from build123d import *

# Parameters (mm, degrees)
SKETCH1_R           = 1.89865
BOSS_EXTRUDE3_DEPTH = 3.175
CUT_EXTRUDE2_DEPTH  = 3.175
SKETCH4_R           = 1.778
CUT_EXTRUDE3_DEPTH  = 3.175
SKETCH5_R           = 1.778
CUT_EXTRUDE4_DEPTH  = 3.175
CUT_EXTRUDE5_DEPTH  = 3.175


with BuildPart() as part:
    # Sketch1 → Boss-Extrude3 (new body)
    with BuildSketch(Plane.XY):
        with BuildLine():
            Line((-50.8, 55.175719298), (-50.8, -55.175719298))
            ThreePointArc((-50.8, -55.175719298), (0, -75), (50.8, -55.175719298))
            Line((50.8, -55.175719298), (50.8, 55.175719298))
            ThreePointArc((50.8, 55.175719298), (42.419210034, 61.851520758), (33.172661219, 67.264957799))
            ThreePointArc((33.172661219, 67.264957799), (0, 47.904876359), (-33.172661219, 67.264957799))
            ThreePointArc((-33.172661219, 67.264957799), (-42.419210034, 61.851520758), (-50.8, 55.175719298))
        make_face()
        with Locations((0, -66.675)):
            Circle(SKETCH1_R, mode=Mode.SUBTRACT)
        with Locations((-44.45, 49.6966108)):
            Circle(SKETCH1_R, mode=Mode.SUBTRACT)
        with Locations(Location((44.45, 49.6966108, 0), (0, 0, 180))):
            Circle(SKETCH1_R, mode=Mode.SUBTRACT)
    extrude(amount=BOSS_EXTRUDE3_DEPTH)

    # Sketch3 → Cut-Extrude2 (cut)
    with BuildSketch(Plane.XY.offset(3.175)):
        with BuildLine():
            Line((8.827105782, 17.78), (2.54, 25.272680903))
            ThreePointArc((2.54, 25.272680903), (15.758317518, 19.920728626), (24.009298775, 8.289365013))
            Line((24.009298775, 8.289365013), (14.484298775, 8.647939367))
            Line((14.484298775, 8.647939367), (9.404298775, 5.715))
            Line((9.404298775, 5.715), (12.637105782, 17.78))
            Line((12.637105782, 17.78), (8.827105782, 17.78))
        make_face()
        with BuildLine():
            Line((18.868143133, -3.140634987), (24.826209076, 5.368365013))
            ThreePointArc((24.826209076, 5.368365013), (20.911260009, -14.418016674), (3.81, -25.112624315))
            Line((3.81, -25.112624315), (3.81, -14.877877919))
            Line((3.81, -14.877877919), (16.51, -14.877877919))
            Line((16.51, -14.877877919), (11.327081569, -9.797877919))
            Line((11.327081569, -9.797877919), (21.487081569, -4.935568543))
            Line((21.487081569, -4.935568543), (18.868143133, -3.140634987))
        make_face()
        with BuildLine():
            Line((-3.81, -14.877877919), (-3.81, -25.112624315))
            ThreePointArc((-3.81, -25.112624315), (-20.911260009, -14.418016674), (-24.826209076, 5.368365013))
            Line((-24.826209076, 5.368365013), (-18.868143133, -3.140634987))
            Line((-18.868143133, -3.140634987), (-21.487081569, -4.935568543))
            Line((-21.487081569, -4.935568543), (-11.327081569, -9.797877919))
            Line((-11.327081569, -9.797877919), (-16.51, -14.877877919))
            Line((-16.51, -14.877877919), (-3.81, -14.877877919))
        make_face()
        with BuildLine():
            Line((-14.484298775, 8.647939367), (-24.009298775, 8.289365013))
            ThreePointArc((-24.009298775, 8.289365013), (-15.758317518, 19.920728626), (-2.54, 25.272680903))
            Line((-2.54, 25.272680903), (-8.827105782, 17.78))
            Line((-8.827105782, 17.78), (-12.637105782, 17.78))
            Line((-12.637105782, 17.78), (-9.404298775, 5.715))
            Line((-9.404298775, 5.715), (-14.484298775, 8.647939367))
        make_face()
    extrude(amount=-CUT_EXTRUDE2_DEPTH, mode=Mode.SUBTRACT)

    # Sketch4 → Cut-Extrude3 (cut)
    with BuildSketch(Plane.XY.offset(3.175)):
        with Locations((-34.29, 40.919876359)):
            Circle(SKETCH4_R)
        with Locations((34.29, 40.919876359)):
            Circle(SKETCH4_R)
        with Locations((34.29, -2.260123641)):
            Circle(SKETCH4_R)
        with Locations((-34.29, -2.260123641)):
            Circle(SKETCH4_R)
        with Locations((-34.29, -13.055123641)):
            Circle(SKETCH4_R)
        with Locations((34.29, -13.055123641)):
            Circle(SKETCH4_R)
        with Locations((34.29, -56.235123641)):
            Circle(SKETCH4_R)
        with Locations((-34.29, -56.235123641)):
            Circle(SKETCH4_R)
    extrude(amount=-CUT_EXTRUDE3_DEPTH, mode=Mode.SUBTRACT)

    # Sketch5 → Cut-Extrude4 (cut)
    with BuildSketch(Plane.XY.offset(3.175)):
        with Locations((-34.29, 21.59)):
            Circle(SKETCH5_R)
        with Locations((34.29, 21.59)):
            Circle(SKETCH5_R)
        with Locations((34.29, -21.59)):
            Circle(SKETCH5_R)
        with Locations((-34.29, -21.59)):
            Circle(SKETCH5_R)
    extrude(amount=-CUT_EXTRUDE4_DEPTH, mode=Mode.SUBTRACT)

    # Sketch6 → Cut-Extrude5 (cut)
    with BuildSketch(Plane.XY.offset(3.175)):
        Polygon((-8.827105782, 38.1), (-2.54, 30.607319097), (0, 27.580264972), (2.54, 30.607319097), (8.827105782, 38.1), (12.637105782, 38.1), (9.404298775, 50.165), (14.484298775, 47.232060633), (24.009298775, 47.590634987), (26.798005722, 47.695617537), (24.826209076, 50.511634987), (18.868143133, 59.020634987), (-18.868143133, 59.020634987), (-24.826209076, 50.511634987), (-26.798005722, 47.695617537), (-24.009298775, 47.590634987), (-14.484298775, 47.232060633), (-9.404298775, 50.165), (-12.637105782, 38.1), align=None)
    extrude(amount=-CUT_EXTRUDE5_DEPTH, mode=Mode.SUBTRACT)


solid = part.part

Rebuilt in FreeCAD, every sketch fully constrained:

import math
import FreeCAD as App
import Part
import Sketcher
from FreeCAD import Vector
Q = App.Units.Quantity


def add_polygon(sketch, points):
    """Adds a closed chain of lines whose ends are joined by coincident constraints."""
    first, n = sketch.GeometryCount, len(points)
    for a, b in zip(points, points[1:] + points[:1]):
        sketch.addGeometry(Part.LineSegment(App.Vector(*a, 0), App.Vector(*b, 0)), False)
    for i in range(n):
        sketch.addConstraint(Sketcher.Constraint("Coincident", first + i, 2, first + (i + 1) % n, 1))

doc = App.newDocument("Part")
params = doc.addObject("Spreadsheet::Sheet", "Params")
for row, (alias, value) in enumerate([
    ("sketch1_radius", "1.5 in"),
    ("pad1_length", "0.125 in"),
    ("sketch2_radius", "1 in"),
    ("sketch2_width", "0.5 in"),
    ("sketch2_width2", "0.15 in"),
    ("sketch2_length", "0.125 in"),
    ("pocket1_length", "0.125 in"),
    ("sketch3_diameter", "0.14 in"),
    ("pocket2_length", "0.125 in"),
    ("sketch4_diameter", "0.14 in"),
    ("pocket3_length", "0.125 in"),
    ("sketch5_width", "0.15 in"),
    ("pocket4_length", "0.125 in"),
], start=1):
    params.set(f"A{row}", alias)
    params.set(f"B{row}", "=" + value)
    params.setAlias(f"B{row}", alias)

body = doc.addObject("PartDesign::Body", "Body")

# Sketch on XY plane
sketch1 = body.newObject("Sketcher::SketchObject", "Sketch")
sketch1.AttachmentSupport = (doc.getObject("XY_Plane"), [""])
sketch1.MapMode = "FlatFace"
sketch1.addGeometry([
    Part.LineSegment(Vector(-50.8, 55.175719, 0), Vector(-50.8, -55.175719, 0)),  # 0
    Part.ArcOfCircle(Part.Circle(Vector(0, 0, 0), Vector(0, 0, 1), 75), math.radians(-132.63561), math.radians(-47.36439)),  # 1
    Part.LineSegment(Vector(50.8, -55.175719, 0), Vector(50.8, 55.175719, 0)),  # 2
    Part.ArcOfCircle(Part.Circle(Vector(0, 0, 0), Vector(0, 0, 1), 75), math.radians(47.36439), math.radians(63.74914)),  # 3
    Part.ArcOfCircle(Part.Circle(Vector(0, 86.004876, 0), Vector(0, 0, 1), 38.1), math.radians(-150.537002), math.radians(-29.462998)),  # 4
    Part.ArcOfCircle(Part.Circle(Vector(0, 0, 0), Vector(0, 0, 1), 75), math.radians(116.25086), math.radians(132.63561)),  # 5
    Part.Circle(Vector(0, -66.675, 0), Vector(0, 0, 1), 1.89865),  # 6
    Part.Circle(Vector(-44.45, 49.696611, 0), Vector(0, 0, 1), 1.89865),  # 7
    Part.Circle(Vector(44.45, 49.696611, 0), Vector(0, 0, 1), 1.89865),  # 8
], False)
sketch1.addConstraint([
    Sketcher.Constraint("Coincident", 0, 2, 1, 1),
    Sketcher.Constraint("Coincident", 1, 2, 2, 1),
    Sketcher.Constraint("Coincident", 2, 2, 3, 1),
    Sketcher.Constraint("Coincident", 3, 2, 4, 2),
    Sketcher.Constraint("Coincident", 4, 1, 5, 1),
    Sketcher.Constraint("Coincident", 5, 2, 0, 1),
    Sketcher.Constraint("Vertical", 0),
    Sketcher.Constraint("Vertical", 2),
    Sketcher.Constraint("Coincident", 1, 3, -1, 1),
    Sketcher.Constraint("Coincident", 3, 3, -1, 1),
    Sketcher.Constraint("Coincident", 5, 3, -1, 1),
    Sketcher.Constraint("Equal", 1, 3),
    Sketcher.Constraint("Equal", 3, 5),
    Sketcher.Constraint("Equal", 6, 7),
    Sketcher.Constraint("Equal", 7, 8),
    Sketcher.Constraint("Symmetric", 7, 3, 8, 3, -2),
    Sketcher.Constraint("PointOnObject", 4, 3, -2),
    Sketcher.Constraint("PointOnObject", 6, 3, -2),
    Sketcher.Constraint("Horizontal", 0, 2, 1, 2),
    Sketcher.Constraint("Radius", 4, Q("1.5 in")),
    Sketcher.Constraint("DistanceX", 0, 2, -1, 1, Q("2 in")),
    Sketcher.Constraint("Diameter", 6, Q("0.1495 in")),
    Sketcher.Constraint("DistanceX", 7, 3, 8, 3, Q("3.5 in")),
    Sketcher.Constraint("Radius", 1, 75.0),
    Sketcher.Constraint("DistanceY", 6, 3, -1, 1, Q("2.625 in")),
    Sketcher.Constraint("DistanceY", -1, 1, 7, 3, 49.696611),
    Sketcher.Constraint("DistanceX", -1, 1, 3, 2, 33.172661),
])
sketch1.setExpression("Constraints[19]", "Params.sketch1_radius")
pad1 = body.newObject("PartDesign::Pad", "Pad")
pad1.Profile = sketch1
pad1.setExpression("Length", "Params.pad1_length")

# Sketch on XY plane
sketch2 = body.newObject("Sketcher::SketchObject", "Sketch001")
sketch2.AttachmentSupport = (doc.getObject("XY_Plane"), [""])
sketch2.MapMode = "FlatFace"
sketch2.AttachmentOffset = App.Placement(Vector(0, 0, 0.125 * 25.4), App.Rotation())
sketch2.addGeometry([
    Part.LineSegment(Vector(2.54, 25.272681, 0), Vector(8.827106, 17.78, 0)),  # 0
    Part.LineSegment(Vector(8.827106, 17.78, 0), Vector(12.637106, 17.78, 0)),  # 1
    Part.LineSegment(Vector(12.637106, 17.78, 0), Vector(9.404299, 5.715, 0)),  # 2
    Part.LineSegment(Vector(9.404299, 5.715, 0), Vector(14.484299, 8.647939, 0)),  # 3
    Part.LineSegment(Vector(14.484299, 8.647939, 0), Vector(24.009299, 8.289365, 0)),  # 4
    Part.ArcOfCircle(Part.Circle(Vector(0, 0, 0), Vector(0, 0, 1), 25.4), math.radians(19.047563), math.radians(84.26083)),  # 5
    Part.LineSegment(Vector(24.826209, 5.368365, 0), Vector(18.868143, -3.140635, 0)),  # 6
    Part.LineSegment(Vector(18.868143, -3.140635, 0), Vector(21.487082, -4.935569, 0)),  # 7
    Part.LineSegment(Vector(21.487082, -4.935569, 0), Vector(11.327082, -9.797878, 0)),  # 8
    Part.LineSegment(Vector(11.327082, -9.797878, 0), Vector(16.51, -14.877878, 0)),  # 9
    Part.LineSegment(Vector(16.51, -14.877878, 0), Vector(3.81, -14.877878, 0)),  # 10
    Part.LineSegment(Vector(3.81, -14.877878, 0), Vector(3.81, -25.112624, 0)),  # 11
    Part.ArcOfCircle(Part.Circle(Vector(0, 0, 0), Vector(0, 0, 1), 25.4), math.radians(-81.373073), math.radians(12.201651)),  # 12
    Part.LineSegment(Vector(-3.81, -25.112624, 0), Vector(-3.81, -14.877878, 0)),  # 13
    Part.LineSegment(Vector(-3.81, -14.877878, 0), Vector(-16.51, -14.877878, 0)),  # 14
    Part.LineSegment(Vector(-16.51, -14.877878, 0), Vector(-11.327082, -9.797878, 0)),  # 15
    Part.LineSegment(Vector(-11.327082, -9.797878, 0), Vector(-21.487082, -4.935569, 0)),  # 16
    Part.LineSegment(Vector(-21.487082, -4.935569, 0), Vector(-18.868143, -3.140635, 0)),  # 17
    Part.LineSegment(Vector(-18.868143, -3.140635, 0), Vector(-24.826209, 5.368365, 0)),  # 18
    Part.ArcOfCircle(Part.Circle(Vector(0, 0, 0), Vector(0, 0, 1), 25.4), math.radians(167.798349), math.radians(261.373073)),  # 19
    Part.LineSegment(Vector(-24.009299, 8.289365, 0), Vector(-14.484299, 8.647939, 0)),  # 20
    Part.LineSegment(Vector(-14.484299, 8.647939, 0), Vector(-9.404299, 5.715, 0)),  # 21
    Part.LineSegment(Vector(-9.404299, 5.715, 0), Vector(-12.637106, 17.78, 0)),  # 22
    Part.LineSegment(Vector(-12.637106, 17.78, 0), Vector(-8.827106, 17.78, 0)),  # 23
    Part.LineSegment(Vector(-8.827106, 17.78, 0), Vector(-2.54, 25.272681, 0)),  # 24
    Part.ArcOfCircle(Part.Circle(Vector(0, 0, 0), Vector(0, 0, 1), 25.4), math.radians(95.73917), math.radians(160.952437)),  # 25
], False)
sketch2.addConstraint([
    Sketcher.Constraint("Coincident", 0, 2, 1, 1),
    Sketcher.Constraint("Coincident", 1, 2, 2, 1),
    Sketcher.Constraint("Coincident", 2, 2, 3, 1),
    Sketcher.Constraint("Coincident", 3, 2, 4, 1),
    Sketcher.Constraint("Coincident", 4, 2, 5, 1),
    Sketcher.Constraint("Coincident", 5, 2, 0, 1),
    Sketcher.Constraint("Coincident", 6, 2, 7, 1),
    Sketcher.Constraint("Coincident", 7, 2, 8, 1),
    Sketcher.Constraint("Coincident", 8, 2, 9, 1),
    Sketcher.Constraint("Coincident", 9, 2, 10, 1),
    Sketcher.Constraint("Coincident", 10, 2, 11, 1),
    Sketcher.Constraint("Coincident", 11, 2, 12, 1),
    Sketcher.Constraint("Coincident", 12, 2, 6, 1),
    Sketcher.Constraint("Coincident", 13, 2, 14, 1),
    Sketcher.Constraint("Coincident", 14, 2, 15, 1),
    Sketcher.Constraint("Coincident", 15, 2, 16, 1),
    Sketcher.Constraint("Coincident", 16, 2, 17, 1),
    Sketcher.Constraint("Coincident", 17, 2, 18, 1),
    Sketcher.Constraint("Coincident", 18, 2, 19, 1),
    Sketcher.Constraint("Coincident", 19, 2, 13, 1),
    Sketcher.Constraint("Coincident", 20, 2, 21, 1),
    Sketcher.Constraint("Coincident", 21, 2, 22, 1),
    Sketcher.Constraint("Coincident", 22, 2, 23, 1),
    Sketcher.Constraint("Coincident", 23, 2, 24, 1),
    Sketcher.Constraint("Coincident", 24, 2, 25, 1),
    Sketcher.Constraint("Coincident", 25, 2, 20, 1),
    Sketcher.Constraint("Horizontal", 1),
    Sketcher.Constraint("Horizontal", 10),
    Sketcher.Constraint("Vertical", 11),
    Sketcher.Constraint("Vertical", 13),
    Sketcher.Constraint("Horizontal", 14),
    Sketcher.Constraint("Horizontal", 23),
    Sketcher.Constraint("Coincident", 5, 3, -1, 1),
    Sketcher.Constraint("Coincident", 12, 3, -1, 1),
    Sketcher.Constraint("Coincident", 19, 3, -1, 1),
    Sketcher.Constraint("Coincident", 25, 3, -1, 1),
    Sketcher.Constraint("Equal", 5, 12),
    Sketcher.Constraint("Equal", 12, 19),
    Sketcher.Constraint("Equal", 19, 25),
    Sketcher.Constraint("Symmetric", 10, 2, 13, 2, -2),
    Sketcher.Constraint("Symmetric", 8, 2, 15, 2, -2),
    Sketcher.Constraint("Symmetric", 7, 2, 16, 2, -2),
    Sketcher.Constraint("Symmetric", 6, 2, 17, 2, -2),
    Sketcher.Constraint("Symmetric", 3, 2, 20, 2, -2),
    Sketcher.Constraint("Symmetric", 2, 2, 21, 2, -2),
    Sketcher.Constraint("Symmetric", 1, 2, 22, 2, -2),
    Sketcher.Constraint("Horizontal", 12, 2, 18, 2),
    Sketcher.Constraint("Horizontal", 5, 2, 24, 2),
    Sketcher.Constraint("Horizontal", 4, 2, 25, 2),
    Sketcher.Constraint("Equal", 10, 14),
    Sketcher.Constraint("Equal", 1, 23),
    Sketcher.Constraint("Radius", 5, Q("1 in")),
    Sketcher.Constraint("DistanceX", 10, 2, 10, 1, Q("0.5 in")),
    Sketcher.Constraint("Angle", 0, Q("-50 deg")),
    Sketcher.Constraint("Angle", 2, Q("-105 deg")),
    Sketcher.Constraint("Angle", 3, Q("30 deg")),
    Sketcher.Constraint("Angle", 6, Q("-125 deg")),
    Sketcher.Constraint("DistanceX", 1, 1, 1, 2, Q("0.15 in")),
    Sketcher.Constraint("DistanceY", -1, 1, 0, 2, Q("0.7 in")),
    Sketcher.Constraint("DistanceX", -1, 1, 5, 2, Q("0.1 in")),
    Sketcher.Constraint("DistanceX", 2, 2, 3, 2, Q("0.2 in")),
    Sketcher.Constraint("DistanceX", 8, 2, 7, 2, Q("0.4 in")),
    Sketcher.Constraint("DistanceY", 9, 2, 8, 2, Q("0.2 in")),
    Sketcher.Constraint("DistanceX", 13, 2, 10, 2, Q("0.3 in")),
    Sketcher.Constraint("DistanceY", 6, 2, 4, 2, Q("0.45 in")),
    Sketcher.Constraint("Distance", 7, Q("0.125 in")),
    Sketcher.Constraint("DistanceY", -1, 1, 2, 2, Q("0.225 in")),
    Sketcher.Constraint("DistanceX", 3, 2, 4, 2, Q("0.375 in")),
    Sketcher.Constraint("DistanceY", 12, 2, 4, 2, Q("0.115 in")),
    Sketcher.Constraint("DistanceX", 7, 2, 4, 2, Q("0.0992999 in")),
    Sketcher.Constraint("DistanceY", 11, 2, 11, 1, 10.234746),
])
sketch2.setExpression("Constraints[51]", "Params.sketch2_radius")
sketch2.setExpression("Constraints[52]", "Params.sketch2_width")
sketch2.setExpression("Constraints[57]", "Params.sketch2_width2")
sketch2.setExpression("Constraints[65]", "Params.sketch2_length")
pocket1 = body.newObject("PartDesign::Pocket", "Pocket")
pocket1.Profile = sketch2
pocket1.setExpression("Length", "Params.pocket1_length")

# Sketch on XY plane
sketch3 = body.newObject("Sketcher::SketchObject", "Sketch002")
sketch3.AttachmentSupport = (doc.getObject("XY_Plane"), [""])
sketch3.MapMode = "FlatFace"
sketch3.AttachmentOffset = App.Placement(Vector(0, 0, 0.125 * 25.4), App.Rotation())
sketch3.addGeometry([
    Part.Circle(Vector(-34.29, 40.919876, 0), Vector(0, 0, 1), 1.778),  # 0
    Part.Circle(Vector(34.29, 40.919876, 0), Vector(0, 0, 1), 1.778),  # 1
    Part.Circle(Vector(34.29, -2.260124, 0), Vector(0, 0, 1), 1.778),  # 2
    Part.Circle(Vector(-34.29, -2.260124, 0), Vector(0, 0, 1), 1.778),  # 3
    Part.Circle(Vector(-34.29, -13.055124, 0), Vector(0, 0, 1), 1.778),  # 4
    Part.Circle(Vector(34.29, -13.055124, 0), Vector(0, 0, 1), 1.778),  # 5
    Part.Circle(Vector(34.29, -56.235124, 0), Vector(0, 0, 1), 1.778),  # 6
    Part.Circle(Vector(-34.29, -56.235124, 0), Vector(0, 0, 1), 1.778),  # 7
], False)
sketch3.addConstraint([
    Sketcher.Constraint("Equal", 0, 1),
    Sketcher.Constraint("Equal", 1, 2),
    Sketcher.Constraint("Equal", 2, 3),
    Sketcher.Constraint("Equal", 3, 4),
    Sketcher.Constraint("Equal", 4, 5),
    Sketcher.Constraint("Equal", 5, 6),
    Sketcher.Constraint("Equal", 6, 7),
    Sketcher.Constraint("Symmetric", 0, 3, 1, 3, -2),
    Sketcher.Constraint("Symmetric", 2, 3, 3, 3, -2),
    Sketcher.Constraint("Symmetric", 4, 3, 5, 3, -2),
    Sketcher.Constraint("Symmetric", 6, 3, 7, 3, -2),
    Sketcher.Constraint("Vertical", 1, 3, 2, 3),
    Sketcher.Constraint("Vertical", 3, 3, 4, 3),
    Sketcher.Constraint("Vertical", 5, 3, 6, 3),
    Sketcher.Constraint("Diameter", 0, Q("0.14 in")),
    Sketcher.Constraint("DistanceX", 0, 3, 1, 3, Q("2.7 in")),
    Sketcher.Constraint("DistanceY", 2, 3, 1, 3, Q("1.7 in")),
    Sketcher.Constraint("DistanceY", 6, 3, 5, 3, Q("1.7 in")),
    Sketcher.Constraint("DistanceY", 4, 3, 3, 3, Q("0.425 in")),
    Sketcher.Constraint("DistanceY", -1, 1, 0, 3, 40.919876),
])
sketch3.setExpression("Constraints[14]", "Params.sketch3_diameter")
pocket2 = body.newObject("PartDesign::Pocket", "Pocket001")
pocket2.Profile = sketch3
pocket2.setExpression("Length", "Params.pocket2_length")

# Sketch on XY plane
sketch4 = body.newObject("Sketcher::SketchObject", "Sketch003")
sketch4.AttachmentSupport = (doc.getObject("XY_Plane"), [""])
sketch4.MapMode = "FlatFace"
sketch4.AttachmentOffset = App.Placement(Vector(0, 0, 0.125 * 25.4), App.Rotation())
sketch4.addGeometry([
    Part.Circle(Vector(-34.29, 21.59, 0), Vector(0, 0, 1), 1.778),
    Part.Circle(Vector(34.29, 21.59, 0), Vector(0, 0, 1), 1.778),
    Part.Circle(Vector(34.29, -21.59, 0), Vector(0, 0, 1), 1.778),
    Part.Circle(Vector(-34.29, -21.59, 0), Vector(0, 0, 1), 1.778),
], False)
sketch4.addConstraint([
    Sketcher.Constraint("Equal", 0, 1),
    Sketcher.Constraint("Equal", 1, 2),
    Sketcher.Constraint("Equal", 2, 3),
    Sketcher.Constraint("Symmetric", 0, 3, 2, 3, -1, 1),
    Sketcher.Constraint("Symmetric", 1, 3, 3, 3, -1, 1),
    Sketcher.Constraint("Symmetric", 0, 3, 1, 3, -2),
    Sketcher.Constraint("Diameter", 0, Q("0.14 in")),
    Sketcher.Constraint("DistanceX", 0, 3, 1, 3, Q("2.7 in")),
    Sketcher.Constraint("DistanceY", 2, 3, 1, 3, Q("1.7 in")),
])
sketch4.setExpression("Constraints[6]", "Params.sketch4_diameter")
pocket3 = body.newObject("PartDesign::Pocket", "Pocket002")
pocket3.Profile = sketch4
pocket3.setExpression("Length", "Params.pocket3_length")

# Sketch on XY plane
sketch5 = body.newObject("Sketcher::SketchObject", "Sketch004")
sketch5.AttachmentSupport = (doc.getObject("XY_Plane"), [""])
sketch5.MapMode = "FlatFace"
sketch5.AttachmentOffset = App.Placement(Vector(0, 0, 0.125 * 25.4), App.Rotation())
add_polygon(sketch5, [(-8.827106, 38.1), (-2.54, 30.607319), (0, 27.580265), (2.54, 30.607319), (8.827106, 38.1), (12.637106, 38.1), (9.404299, 50.165), (14.484299, 47.232061), (24.009299, 47.590635), (26.798006, 47.695618), (24.826209, 50.511635), (18.868143, 59.020635), (-18.868143, 59.020635), (-24.826209, 50.511635), (-26.798006, 47.695618), (-24.009299, 47.590635), (-14.484299, 47.232061), (-9.404299, 50.165), (-12.637106, 38.1)])  # lines 0-18
sketch5.addConstraint([
    Sketcher.Constraint("Horizontal", 4),
    Sketcher.Constraint("Horizontal", 11),
    Sketcher.Constraint("Horizontal", 18),
    Sketcher.Constraint("Symmetric", 0, 2, 2, 2, -2),
    Sketcher.Constraint("Symmetric", 9, 2, 12, 2, -2),
    Sketcher.Constraint("Symmetric", 8, 2, 13, 2, -2),
    Sketcher.Constraint("Symmetric", 7, 2, 14, 2, -2),
    Sketcher.Constraint("Symmetric", 6, 2, 15, 2, -2),
    Sketcher.Constraint("Symmetric", 5, 2, 16, 2, -2),
    Sketcher.Constraint("Symmetric", 4, 2, 17, 2, -2),
    Sketcher.Constraint("PointOnObject", 1, 2, -2),
    Sketcher.Constraint("Parallel", 0, 1),
    Sketcher.Constraint("Parallel", 2, 3),
    Sketcher.Constraint("Parallel", 7, 8),
    Sketcher.Constraint("Parallel", 9, 10),
    Sketcher.Constraint("Parallel", 12, 13),
    Sketcher.Constraint("Angle", 0, Q("-50 deg")),
    Sketcher.Constraint("Angle", 5, Q("105 deg")),
    Sketcher.Constraint("Angle", 6, Q("-30 deg")),
    Sketcher.Constraint("Angle", 9, Q("125 deg")),
    Sketcher.Constraint("DistanceX", 4, 1, 4, 2, Q("0.15 in")),
    Sketcher.Constraint("DistanceX", 0, 2, -1, 1, Q("0.1 in")),
    Sketcher.Constraint("DistanceY", -1, 1, 3, 2, Q("1.5 in")),
    Sketcher.Constraint("DistanceX", 5, 2, 6, 2, Q("0.2 in")),
    Sketcher.Constraint("DistanceY", 7, 2, 10, 2, Q("0.45 in")),
    Sketcher.Constraint("DistanceY", -1, 1, 5, 2, Q("1.975 in")),
    Sketcher.Constraint("DistanceX", 6, 2, 7, 2, Q("0.375 in")),
    Sketcher.Constraint("DistanceY", 7, 2, 9, 2, Q("0.115 in")),
    Sketcher.Constraint("Distance", 0, 9.781),
    Sketcher.Constraint("DistanceX", 4, 2, 8, 2, 14.1609),
    Sketcher.Constraint("DistanceY", 0, 2, 13, 2, 17.088298),
])
sketch5.setExpression("Constraints[39]", "Params.sketch5_width")
pocket4 = body.newObject("PartDesign::Pocket", "Pocket003")
pocket4.Profile = sketch5
pocket4.setExpression("Length", "Params.pocket4_length")

doc.recompute()
